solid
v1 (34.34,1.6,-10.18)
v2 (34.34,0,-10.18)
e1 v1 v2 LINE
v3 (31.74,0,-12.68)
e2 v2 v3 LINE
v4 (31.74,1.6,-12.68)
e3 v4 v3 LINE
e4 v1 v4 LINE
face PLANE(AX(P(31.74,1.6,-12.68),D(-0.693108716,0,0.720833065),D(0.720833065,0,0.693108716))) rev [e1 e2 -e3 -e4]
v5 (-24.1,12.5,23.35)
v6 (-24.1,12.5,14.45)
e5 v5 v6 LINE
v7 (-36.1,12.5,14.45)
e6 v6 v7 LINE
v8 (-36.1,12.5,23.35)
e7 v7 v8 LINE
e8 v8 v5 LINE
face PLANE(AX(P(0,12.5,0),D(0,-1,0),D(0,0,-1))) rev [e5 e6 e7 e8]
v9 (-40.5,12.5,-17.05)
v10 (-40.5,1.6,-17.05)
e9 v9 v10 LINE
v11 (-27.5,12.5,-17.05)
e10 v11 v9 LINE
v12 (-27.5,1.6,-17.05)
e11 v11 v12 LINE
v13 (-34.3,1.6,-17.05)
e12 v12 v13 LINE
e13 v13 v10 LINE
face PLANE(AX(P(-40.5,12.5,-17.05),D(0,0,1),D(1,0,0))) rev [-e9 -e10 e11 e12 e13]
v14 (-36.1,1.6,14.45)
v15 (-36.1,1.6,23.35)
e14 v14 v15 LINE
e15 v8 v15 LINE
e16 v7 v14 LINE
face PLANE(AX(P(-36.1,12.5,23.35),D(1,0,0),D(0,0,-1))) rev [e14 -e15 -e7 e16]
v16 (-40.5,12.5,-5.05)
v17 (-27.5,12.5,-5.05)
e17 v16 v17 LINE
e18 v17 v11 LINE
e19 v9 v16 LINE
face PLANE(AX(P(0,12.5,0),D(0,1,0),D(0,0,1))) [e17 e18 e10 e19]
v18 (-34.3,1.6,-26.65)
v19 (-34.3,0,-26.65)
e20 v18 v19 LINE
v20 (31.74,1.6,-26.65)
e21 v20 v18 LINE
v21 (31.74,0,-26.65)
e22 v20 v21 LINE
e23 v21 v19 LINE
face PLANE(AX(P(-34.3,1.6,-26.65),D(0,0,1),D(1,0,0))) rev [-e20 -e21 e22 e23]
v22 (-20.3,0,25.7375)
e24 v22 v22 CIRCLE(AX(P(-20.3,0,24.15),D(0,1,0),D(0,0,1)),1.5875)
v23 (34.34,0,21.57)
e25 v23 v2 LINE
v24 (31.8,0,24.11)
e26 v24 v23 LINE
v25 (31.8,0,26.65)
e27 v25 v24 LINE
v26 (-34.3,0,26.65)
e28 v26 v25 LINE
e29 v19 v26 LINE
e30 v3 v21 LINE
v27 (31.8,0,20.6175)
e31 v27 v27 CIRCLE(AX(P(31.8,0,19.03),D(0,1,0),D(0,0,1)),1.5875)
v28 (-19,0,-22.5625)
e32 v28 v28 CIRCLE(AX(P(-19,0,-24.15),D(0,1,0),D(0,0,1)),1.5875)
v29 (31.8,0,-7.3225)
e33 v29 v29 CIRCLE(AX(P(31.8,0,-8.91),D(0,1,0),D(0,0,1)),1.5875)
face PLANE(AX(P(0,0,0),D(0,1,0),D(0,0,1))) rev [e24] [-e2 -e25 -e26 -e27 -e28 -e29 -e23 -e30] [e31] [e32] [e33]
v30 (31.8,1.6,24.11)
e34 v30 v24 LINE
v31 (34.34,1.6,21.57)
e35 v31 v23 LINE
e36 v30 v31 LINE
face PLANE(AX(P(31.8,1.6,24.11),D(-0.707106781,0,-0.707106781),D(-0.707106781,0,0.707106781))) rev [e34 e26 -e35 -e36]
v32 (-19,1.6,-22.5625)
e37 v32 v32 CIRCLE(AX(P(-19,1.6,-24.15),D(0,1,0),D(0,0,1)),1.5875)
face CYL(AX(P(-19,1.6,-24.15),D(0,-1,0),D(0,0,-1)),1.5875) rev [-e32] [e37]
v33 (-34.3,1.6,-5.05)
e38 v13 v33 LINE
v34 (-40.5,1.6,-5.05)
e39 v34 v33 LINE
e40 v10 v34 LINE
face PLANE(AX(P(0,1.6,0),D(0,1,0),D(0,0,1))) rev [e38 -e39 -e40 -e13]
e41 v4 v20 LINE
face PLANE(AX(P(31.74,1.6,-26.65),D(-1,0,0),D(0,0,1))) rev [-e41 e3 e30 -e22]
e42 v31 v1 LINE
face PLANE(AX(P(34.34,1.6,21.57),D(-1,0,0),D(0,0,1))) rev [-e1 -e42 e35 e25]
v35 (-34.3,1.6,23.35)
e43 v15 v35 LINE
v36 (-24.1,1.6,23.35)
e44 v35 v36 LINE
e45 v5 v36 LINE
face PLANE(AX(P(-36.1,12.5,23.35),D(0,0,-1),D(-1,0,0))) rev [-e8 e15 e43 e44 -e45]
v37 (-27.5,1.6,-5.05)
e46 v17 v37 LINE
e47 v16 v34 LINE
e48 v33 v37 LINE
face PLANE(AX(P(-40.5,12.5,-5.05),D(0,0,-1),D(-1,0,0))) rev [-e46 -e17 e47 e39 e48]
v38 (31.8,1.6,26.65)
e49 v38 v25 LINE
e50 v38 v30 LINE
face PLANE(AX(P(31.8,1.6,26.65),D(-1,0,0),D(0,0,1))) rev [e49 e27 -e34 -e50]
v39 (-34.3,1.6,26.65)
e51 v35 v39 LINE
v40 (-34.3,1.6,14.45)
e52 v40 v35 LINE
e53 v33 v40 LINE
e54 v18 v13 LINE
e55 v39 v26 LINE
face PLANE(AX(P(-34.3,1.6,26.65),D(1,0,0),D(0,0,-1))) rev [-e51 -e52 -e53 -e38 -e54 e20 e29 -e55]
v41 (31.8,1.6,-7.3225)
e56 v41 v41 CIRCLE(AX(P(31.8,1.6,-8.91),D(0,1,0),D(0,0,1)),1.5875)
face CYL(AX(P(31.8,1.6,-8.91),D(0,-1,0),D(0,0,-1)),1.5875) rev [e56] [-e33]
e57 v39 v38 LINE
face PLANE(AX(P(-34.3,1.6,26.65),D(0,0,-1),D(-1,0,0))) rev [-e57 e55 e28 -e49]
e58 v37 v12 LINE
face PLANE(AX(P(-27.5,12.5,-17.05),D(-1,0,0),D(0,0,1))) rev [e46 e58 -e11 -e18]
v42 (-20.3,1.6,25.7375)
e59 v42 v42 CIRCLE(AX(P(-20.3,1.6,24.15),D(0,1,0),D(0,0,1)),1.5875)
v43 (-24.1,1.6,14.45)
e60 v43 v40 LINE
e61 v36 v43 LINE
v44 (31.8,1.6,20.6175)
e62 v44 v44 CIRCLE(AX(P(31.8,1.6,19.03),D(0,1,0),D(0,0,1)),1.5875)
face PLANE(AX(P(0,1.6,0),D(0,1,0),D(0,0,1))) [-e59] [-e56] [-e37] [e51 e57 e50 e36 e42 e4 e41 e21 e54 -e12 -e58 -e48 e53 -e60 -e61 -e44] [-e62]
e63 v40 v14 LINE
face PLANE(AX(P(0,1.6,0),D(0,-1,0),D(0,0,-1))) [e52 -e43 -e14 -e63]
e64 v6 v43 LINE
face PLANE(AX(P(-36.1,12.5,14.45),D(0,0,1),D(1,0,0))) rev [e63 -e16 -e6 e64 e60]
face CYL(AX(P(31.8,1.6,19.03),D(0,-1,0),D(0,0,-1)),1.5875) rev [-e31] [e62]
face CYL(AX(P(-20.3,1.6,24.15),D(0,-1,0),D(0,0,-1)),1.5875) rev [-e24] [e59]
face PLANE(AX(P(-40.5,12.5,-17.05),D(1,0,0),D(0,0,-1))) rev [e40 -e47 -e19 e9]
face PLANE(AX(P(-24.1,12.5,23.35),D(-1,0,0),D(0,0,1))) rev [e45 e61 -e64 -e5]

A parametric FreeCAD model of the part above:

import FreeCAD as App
import Part
import Sketcher

V = App.Vector
Q = App.Units.Quantity

doc = App.newDocument("Part")
body = doc.addObject("PartDesign::Body", "Body")

sketch1 = body.newObject("Sketcher::SketchObject", "Sketch")
sketch1.AttachmentSupport = (doc.getObject("XZ_Plane"), [""])
sketch1.MapMode = "FlatFace"
sketch1.addGeometry([
    Part.LineSegment(V(-34.3, -26.65, 0), V(-34.3, 26.65, 0)),
    Part.LineSegment(V(-34.3, 26.65, 0), V(31.8, 26.65, 0)),
    Part.LineSegment(V(31.8, 26.65, 0), V(31.8, 24.11, 0)),
    Part.LineSegment(V(31.8, 24.11, 0), V(34.34, 21.57, 0)),
    Part.LineSegment(V(34.34, 21.57, 0), V(34.34, -10.18, 0)),
    Part.LineSegment(V(34.34, -10.18, 0), V(31.74, -12.68, 0)),
    Part.LineSegment(V(31.74, -12.68, 0), V(31.74, -26.65, 0)),
    Part.LineSegment(V(31.74, -26.65, 0), V(-34.3, -26.65, 0)),
    Part.Circle(V(31.8, 19.03, 0), V(0, 0, 1), 1.5875),
    Part.Circle(V(-20.3, 24.15, 0), V(0, 0, 1), 1.5875),
    Part.Circle(V(31.8, -8.91, 0), V(0, 0, 1), 1.5875),
    Part.Circle(V(-19, -24.15, 0), V(0, 0, 1), 1.5875),
], False)
sketch1.addConstraint([
    Sketcher.Constraint("Coincident", 0, 2, 1, 1),
    Sketcher.Constraint("Coincident", 1, 2, 2, 1),
    Sketcher.Constraint("Coincident", 2, 2, 3, 1),
    Sketcher.Constraint("Coincident", 3, 2, 4, 1),
    Sketcher.Constraint("Coincident", 4, 2, 5, 1),
    Sketcher.Constraint("Coincident", 5, 2, 6, 1),
    Sketcher.Constraint("Coincident", 6, 2, 7, 1),
    Sketcher.Constraint("Coincident", 7, 2, 0, 1),
    Sketcher.Constraint("Vertical", 0),
    Sketcher.Constraint("Horizontal", 1),
    Sketcher.Constraint("Vertical", 2),
    Sketcher.Constraint("Vertical", 4),
    Sketcher.Constraint("Vertical", 6),
    Sketcher.Constraint("Horizontal", 7),
    Sketcher.Constraint("Equal", 8, 9),
    Sketcher.Constraint("Equal", 9, 10),
    Sketcher.Constraint("Equal", 10, 11),
    Sketcher.Constraint("Vertical", 8, 3, 10, 3),
    Sketcher.Constraint("Vertical", 10, 3, 1, 2),
    Sketcher.Constraint("Angle", 3, Q("-45 deg")),
    Sketcher.Constraint("Diameter", 8, Q("3.175 mm")),
    Sketcher.Constraint("DistanceX", 1, 1, 1, 2, Q("66.1 mm")),
    Sketcher.Constraint("DistanceY", 0, 1, 0, 2, Q("53.3 mm")),
    Sketcher.Constraint("DistanceX", 11, 3, -1, 1, Q("19 mm")),
    Sketcher.Constraint("DistanceX", 0, 2, 9, 3, Q("14 mm")),
    Sketcher.Constraint("DistanceX", 7, 2, 7, 1, Q("66.04 mm")),
    Sketcher.Constraint("DistanceY", 2, 2, 2, 1, Q("2.54 mm")),
    Sketcher.Constraint("DistanceY", 4, 2, 4, 1, Q("31.75 mm")),
    Sketcher.Constraint("DistanceY", 6, 2, 6, 1, Q("13.97 mm")),
    Sketcher.Constraint("DistanceX", -1, 1, 8, 3, Q("31.8 mm")),
    Sketcher.Constraint("DistanceY", 11, 3, 9, 3, Q("48.3 mm")),
    Sketcher.Constraint("DistanceY", 9, 3, 0, 2, Q("2.5 mm")),
    Sketcher.Constraint("DistanceX", 5, 2, 4, 2, Q("2.6 mm")),
    Sketcher.Constraint("DistanceY", -1, 1, 8, 3, Q("19.03 mm")),
    Sketcher.Constraint("DistanceY", -1, 1, 9, 3, Q("24.15 mm")),
    Sketcher.Constraint("DistanceY", 10, 3, -1, 1, Q("8.91 mm")),
])
pad1 = body.newObject("PartDesign::Pad", "Pad")
pad1.Profile = sketch1
pad1.Length = 1.6
pad1.Reversed = True

sketch2 = body.newObject("Sketcher::SketchObject", "Sketch001")
sketch2.AttachmentSupport = (doc.getObject("XZ_Plane"), [""])
sketch2.MapMode = "FlatFace"
sketch2.AttachmentOffset = App.Placement(V(0, 0, -1.6), App.Rotation())
sketch2.addGeometry([
    Part.LineSegment(V(-36.1, 14.45, 0), V(-36.1, 23.35, 0)),
    Part.LineSegment(V(-36.1, 23.35, 0), V(-24.1, 23.35, 0)),
    Part.LineSegment(V(-24.1, 23.35, 0), V(-24.1, 14.45, 0)),
    Part.LineSegment(V(-24.1, 14.45, 0), V(-36.1, 14.45, 0)),
    Part.LineSegment(V(-40.5, -17.05, 0), V(-40.5, -5.05, 0)),
    Part.LineSegment(V(-40.5, -5.05, 0), V(-27.5, -5.05, 0)),
    Part.LineSegment(V(-27.5, -5.05, 0), V(-27.5, -17.05, 0)),
    Part.LineSegment(V(-27.5, -17.05, 0), V(-40.5, -17.05, 0)),
], False)
sketch2.addConstraint([
    Sketcher.Constraint("Coincident", 0, 2, 1, 1),
    Sketcher.Constraint("Coincident", 1, 2, 2, 1),
    Sketcher.Constraint("Coincident", 2, 2, 3, 1),
    Sketcher.Constraint("Coincident", 3, 2, 0, 1),
    Sketcher.Constraint("Coincident", 4, 2, 5, 1),
    Sketcher.Constraint("Coincident", 5, 2, 6, 1),
    Sketcher.Constraint("Coincident", 6, 2, 7, 1),
    Sketcher.Constraint("Coincident", 7, 2, 4, 1),
    Sketcher.Constraint("Vertical", 0),
    Sketcher.Constraint("Horizontal", 1),
    Sketcher.Constraint("Vertical", 2),
    Sketcher.Constraint("Horizontal", 3),
    Sketcher.Constraint("Vertical", 4),
    Sketcher.Constraint("Horizontal", 5),
    Sketcher.Constraint("Vertical", 6),
    Sketcher.Constraint("Horizontal", 7),
    Sketcher.Constraint("Equal", 3, 4),
    Sketcher.Constraint("DistanceX", 1, 1, 1, 2, Q("12 mm")),
    Sketcher.Constraint("DistanceX", 5, 1, 5, 2, Q("13 mm")),
    Sketcher.Constraint("DistanceY", 0, 1, 0, 2, Q("8.9 mm")),
    Sketcher.Constraint("DistanceX", 0, 2, -1, 1, Q("36.1 mm")),
    Sketcher.Constraint("DistanceX", 4, 2, -1, 1, Q("40.5 mm")),
    Sketcher.Constraint("DistanceY", 4, 2, 3, 2, Q("19.5 mm")),
    Sketcher.Constraint("DistanceY", -1, 1, 0, 2, Q("23.35 mm")),
])
pad2 = body.newObject("PartDesign::Pad", "Pad001")
pad2.Profile = sketch2
pad2.Length = 10.9
pad2.Reversed = True

doc.recompute()
